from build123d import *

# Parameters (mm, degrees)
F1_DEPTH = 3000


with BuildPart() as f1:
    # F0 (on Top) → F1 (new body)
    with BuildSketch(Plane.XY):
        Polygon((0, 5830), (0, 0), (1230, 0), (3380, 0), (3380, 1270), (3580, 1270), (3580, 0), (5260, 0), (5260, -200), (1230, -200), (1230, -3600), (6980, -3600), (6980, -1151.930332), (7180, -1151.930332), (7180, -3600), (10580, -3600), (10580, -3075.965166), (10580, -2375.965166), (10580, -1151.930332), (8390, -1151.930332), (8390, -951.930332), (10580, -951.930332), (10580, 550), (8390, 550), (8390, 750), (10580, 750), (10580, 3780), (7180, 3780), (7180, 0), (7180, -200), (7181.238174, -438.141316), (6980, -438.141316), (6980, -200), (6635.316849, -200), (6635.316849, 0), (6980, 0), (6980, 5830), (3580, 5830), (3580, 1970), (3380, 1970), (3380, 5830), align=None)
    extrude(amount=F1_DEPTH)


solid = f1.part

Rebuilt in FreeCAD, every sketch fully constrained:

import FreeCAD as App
import Part
import Sketcher
Q = App.Units.Quantity


def add_polygon(sketch, points):
    """Adds a closed chain of lines whose ends are joined by coincident constraints."""
    first, n = sketch.GeometryCount, len(points)
    for a, b in zip(points, points[1:] + points[:1]):
        sketch.addGeometry(Part.LineSegment(App.Vector(*a, 0), App.Vector(*b, 0)), False)
    for i in range(n):
        sketch.addConstraint(Sketcher.Constraint("Coincident", first + i, 2, first + (i + 1) % n, 1))

doc = App.newDocument("Part")
params = doc.addObject("Spreadsheet::Sheet", "Params")
for row, (alias, value) in enumerate([
    ("sketch1_width", "3380 mm"),
    ("sketch1_width2", "200 mm"),
    ("sketch1_width3", "1680 mm"),
    ("sketch1_width4", "4030 mm"),
    ("sketch1_width5", "5750 mm"),
    ("pad1_length", "3000 mm"),
], start=1):
    params.set(f"A{row}", alias)
    params.set(f"B{row}", "=" + value)
    params.setAlias(f"B{row}", alias)

body = doc.addObject("PartDesign::Body", "Body")

sketch1 = doc.addObject("Sketcher::SketchObject", "Sketch")
body.addObject(sketch1)
sketch1.AttachmentSupport = (doc.XY_Plane, [""])
sketch1.MapMode = "FlatFace"
add_polygon(sketch1, [(0, 5830), (0, 0), (3380, 0), (3380, 1270), (3580, 1270), (3580, 0), (5260, 0), (5260, -200), (1230, -200), (1230, -3600), (6980, -3600), (6980, -1151.930332), (7180, -1151.930332), (7180, -3600), (10580, -3600), (10580, -1151.930332), (8390, -1151.930332), (8390, -951.930332), (10580, -951.930332), (10580, 550), (8390, 550), (8390, 750), (10580, 750), (10580, 3780), (7180, 3780), (7180, -200), (7181.238174, -438.141316), (6980, -438.141316), (6980, -200), (6635.316849, -200), (6635.316849, 0), (6980, 0), (6980, 5830), (3580, 5830), (3580, 1970), (3380, 1970), (3380, 5830)])
sketch1.addConstraint([
    Sketcher.Constraint("Vertical", 0),
    Sketcher.Constraint("Horizontal", 1),
    Sketcher.Constraint("Vertical", 2),
    Sketcher.Constraint("Horizontal", 3),
    Sketcher.Constraint("Vertical", 4),
    Sketcher.Constraint("Horizontal", 5),
    Sketcher.Constraint("Vertical", 6),
    Sketcher.Constraint("Horizontal", 7),
    Sketcher.Constraint("Vertical", 8),
    Sketcher.Constraint("Horizontal", 9),
    Sketcher.Constraint("Vertical", 10),
    Sketcher.Constraint("Horizontal", 11),
    Sketcher.Constraint("Vertical", 12),
    Sketcher.Constraint("Horizontal", 13),
    Sketcher.Constraint("Vertical", 14),
    Sketcher.Constraint("Horizontal", 15),
    Sketcher.Constraint("Vertical", 16),
    Sketcher.Constraint("Horizontal", 17),
    Sketcher.Constraint("Vertical", 18),
    Sketcher.Constraint("Horizontal", 19),
    Sketcher.Constraint("Vertical", 20),
    Sketcher.Constraint("Horizontal", 21),
    Sketcher.Constraint("Vertical", 22),
    Sketcher.Constraint("Horizontal", 23),
    Sketcher.Constraint("Vertical", 24),
    Sketcher.Constraint("Horizontal", 26),
    Sketcher.Constraint("Vertical", 27),
    Sketcher.Constraint("Horizontal", 28),
    Sketcher.Constraint("Vertical", 29),
    Sketcher.Constraint("Horizontal", 30),
    Sketcher.Constraint("Vertical", 31),
    Sketcher.Constraint("Horizontal", 32),
    Sketcher.Constraint("Vertical", 33),
    Sketcher.Constraint("Horizontal", 34),
    Sketcher.Constraint("Vertical", 35),
    Sketcher.Constraint("Horizontal", 36),
    Sketcher.Constraint("Coincident", 0, 2, -1, 1),
    Sketcher.Constraint("PointOnObject", 4, 2, -1),
    Sketcher.Constraint("PointOnObject", 29, 2, -1),
    Sketcher.Constraint("Horizontal", 9, 2, 12, 2),
    Sketcher.Constraint("Horizontal", 11, 2, 14, 2),
    Sketcher.Constraint("Horizontal", 7, 2, 24, 2),
    Sketcher.Constraint("Horizontal", 24, 2, 27, 2),
    Sketcher.Constraint("Horizontal", 32, 2, 35, 2),
    Sketcher.Constraint("Vertical", 14, 2, 17, 2),
    Sketcher.Constraint("Vertical", 16, 2, 19, 2),
    Sketcher.Constraint("Vertical", 18, 2, 21, 2),
    Sketcher.Constraint("Vertical", 12, 2, 23, 2),
    Sketcher.Constraint("Vertical", 10, 2, 26, 2),
    Sketcher.Constraint("Vertical", 27, 2, 30, 2),
    Sketcher.Constraint("Vertical", 4, 2, 32, 2),
    Sketcher.Constraint("Vertical", 2, 2, 34, 2),
    Sketcher.Constraint("Equal", 3, 11),
    Sketcher.Constraint("Equal", 23, 32),
    Sketcher.Constraint("Equal", 34, 6),
    Sketcher.Constraint("Equal", 32, 8),
    Sketcher.Constraint("Equal", 6, 16),
    Sketcher.Constraint("Equal", 16, 20),
    Sketcher.Constraint("DistanceX", 1, 1, 1, 2, Q("3380 mm")),
    Sketcher.Constraint("DistanceX", 3, 1, 3, 2, Q("200 mm")),
    Sketcher.Constraint("DistanceX", 5, 1, 5, 2, Q("1680 mm")),
    Sketcher.Constraint("DistanceX", 7, 2, 7, 1, Q("4030 mm")),
    Sketcher.Constraint("DistanceX", 9, 1, 9, 2, Q("5750 mm")),
    Sketcher.Constraint("DistanceX", 15, 2, 15, 1, Q("2190 mm")),
    Sketcher.Constraint("DistanceY", 0, 2, 0, 1, Q("5830 mm")),
    Sketcher.Constraint("DistanceY", 2, 1, 2, 2, Q("1270 mm")),
    Sketcher.Constraint("DistanceY", 22, 1, 22, 2, Q("3030 mm")),
    Sketcher.Constraint("DistanceY", 24, 2, 24, 1, Q("3980 mm")),
    Sketcher.Constraint("DistanceY", 33, 2, 33, 1, Q("3860 mm")),
    Sketcher.Constraint("DistanceX", 28, 2, 28, 1, Q("344.683151 mm")),
    Sketcher.Constraint("DistanceY", 10, 1, 10, 2, Q("2448.069668 mm")),
    Sketcher.Constraint("DistanceX", 26, 2, 26, 1, Q("201.238174 mm")),
    Sketcher.Constraint("DistanceY", 27, 1, 27, 2, Q("238.141316 mm")),
])
sketch1.setExpression("Constraints[95]", "Params.sketch1_width")
sketch1.setExpression("Constraints[96]", "Params.sketch1_width2")
sketch1.setExpression("Constraints[97]", "Params.sketch1_width3")
sketch1.setExpression("Constraints[98]", "Params.sketch1_width4")
sketch1.setExpression("Constraints[99]", "Params.sketch1_width5")
pad1 = doc.addObject("PartDesign::Pad", "Pad")
body.addObject(pad1)
pad1.Profile = sketch1
pad1.setExpression("Length", "Params.pad1_length")

doc.recompute()
